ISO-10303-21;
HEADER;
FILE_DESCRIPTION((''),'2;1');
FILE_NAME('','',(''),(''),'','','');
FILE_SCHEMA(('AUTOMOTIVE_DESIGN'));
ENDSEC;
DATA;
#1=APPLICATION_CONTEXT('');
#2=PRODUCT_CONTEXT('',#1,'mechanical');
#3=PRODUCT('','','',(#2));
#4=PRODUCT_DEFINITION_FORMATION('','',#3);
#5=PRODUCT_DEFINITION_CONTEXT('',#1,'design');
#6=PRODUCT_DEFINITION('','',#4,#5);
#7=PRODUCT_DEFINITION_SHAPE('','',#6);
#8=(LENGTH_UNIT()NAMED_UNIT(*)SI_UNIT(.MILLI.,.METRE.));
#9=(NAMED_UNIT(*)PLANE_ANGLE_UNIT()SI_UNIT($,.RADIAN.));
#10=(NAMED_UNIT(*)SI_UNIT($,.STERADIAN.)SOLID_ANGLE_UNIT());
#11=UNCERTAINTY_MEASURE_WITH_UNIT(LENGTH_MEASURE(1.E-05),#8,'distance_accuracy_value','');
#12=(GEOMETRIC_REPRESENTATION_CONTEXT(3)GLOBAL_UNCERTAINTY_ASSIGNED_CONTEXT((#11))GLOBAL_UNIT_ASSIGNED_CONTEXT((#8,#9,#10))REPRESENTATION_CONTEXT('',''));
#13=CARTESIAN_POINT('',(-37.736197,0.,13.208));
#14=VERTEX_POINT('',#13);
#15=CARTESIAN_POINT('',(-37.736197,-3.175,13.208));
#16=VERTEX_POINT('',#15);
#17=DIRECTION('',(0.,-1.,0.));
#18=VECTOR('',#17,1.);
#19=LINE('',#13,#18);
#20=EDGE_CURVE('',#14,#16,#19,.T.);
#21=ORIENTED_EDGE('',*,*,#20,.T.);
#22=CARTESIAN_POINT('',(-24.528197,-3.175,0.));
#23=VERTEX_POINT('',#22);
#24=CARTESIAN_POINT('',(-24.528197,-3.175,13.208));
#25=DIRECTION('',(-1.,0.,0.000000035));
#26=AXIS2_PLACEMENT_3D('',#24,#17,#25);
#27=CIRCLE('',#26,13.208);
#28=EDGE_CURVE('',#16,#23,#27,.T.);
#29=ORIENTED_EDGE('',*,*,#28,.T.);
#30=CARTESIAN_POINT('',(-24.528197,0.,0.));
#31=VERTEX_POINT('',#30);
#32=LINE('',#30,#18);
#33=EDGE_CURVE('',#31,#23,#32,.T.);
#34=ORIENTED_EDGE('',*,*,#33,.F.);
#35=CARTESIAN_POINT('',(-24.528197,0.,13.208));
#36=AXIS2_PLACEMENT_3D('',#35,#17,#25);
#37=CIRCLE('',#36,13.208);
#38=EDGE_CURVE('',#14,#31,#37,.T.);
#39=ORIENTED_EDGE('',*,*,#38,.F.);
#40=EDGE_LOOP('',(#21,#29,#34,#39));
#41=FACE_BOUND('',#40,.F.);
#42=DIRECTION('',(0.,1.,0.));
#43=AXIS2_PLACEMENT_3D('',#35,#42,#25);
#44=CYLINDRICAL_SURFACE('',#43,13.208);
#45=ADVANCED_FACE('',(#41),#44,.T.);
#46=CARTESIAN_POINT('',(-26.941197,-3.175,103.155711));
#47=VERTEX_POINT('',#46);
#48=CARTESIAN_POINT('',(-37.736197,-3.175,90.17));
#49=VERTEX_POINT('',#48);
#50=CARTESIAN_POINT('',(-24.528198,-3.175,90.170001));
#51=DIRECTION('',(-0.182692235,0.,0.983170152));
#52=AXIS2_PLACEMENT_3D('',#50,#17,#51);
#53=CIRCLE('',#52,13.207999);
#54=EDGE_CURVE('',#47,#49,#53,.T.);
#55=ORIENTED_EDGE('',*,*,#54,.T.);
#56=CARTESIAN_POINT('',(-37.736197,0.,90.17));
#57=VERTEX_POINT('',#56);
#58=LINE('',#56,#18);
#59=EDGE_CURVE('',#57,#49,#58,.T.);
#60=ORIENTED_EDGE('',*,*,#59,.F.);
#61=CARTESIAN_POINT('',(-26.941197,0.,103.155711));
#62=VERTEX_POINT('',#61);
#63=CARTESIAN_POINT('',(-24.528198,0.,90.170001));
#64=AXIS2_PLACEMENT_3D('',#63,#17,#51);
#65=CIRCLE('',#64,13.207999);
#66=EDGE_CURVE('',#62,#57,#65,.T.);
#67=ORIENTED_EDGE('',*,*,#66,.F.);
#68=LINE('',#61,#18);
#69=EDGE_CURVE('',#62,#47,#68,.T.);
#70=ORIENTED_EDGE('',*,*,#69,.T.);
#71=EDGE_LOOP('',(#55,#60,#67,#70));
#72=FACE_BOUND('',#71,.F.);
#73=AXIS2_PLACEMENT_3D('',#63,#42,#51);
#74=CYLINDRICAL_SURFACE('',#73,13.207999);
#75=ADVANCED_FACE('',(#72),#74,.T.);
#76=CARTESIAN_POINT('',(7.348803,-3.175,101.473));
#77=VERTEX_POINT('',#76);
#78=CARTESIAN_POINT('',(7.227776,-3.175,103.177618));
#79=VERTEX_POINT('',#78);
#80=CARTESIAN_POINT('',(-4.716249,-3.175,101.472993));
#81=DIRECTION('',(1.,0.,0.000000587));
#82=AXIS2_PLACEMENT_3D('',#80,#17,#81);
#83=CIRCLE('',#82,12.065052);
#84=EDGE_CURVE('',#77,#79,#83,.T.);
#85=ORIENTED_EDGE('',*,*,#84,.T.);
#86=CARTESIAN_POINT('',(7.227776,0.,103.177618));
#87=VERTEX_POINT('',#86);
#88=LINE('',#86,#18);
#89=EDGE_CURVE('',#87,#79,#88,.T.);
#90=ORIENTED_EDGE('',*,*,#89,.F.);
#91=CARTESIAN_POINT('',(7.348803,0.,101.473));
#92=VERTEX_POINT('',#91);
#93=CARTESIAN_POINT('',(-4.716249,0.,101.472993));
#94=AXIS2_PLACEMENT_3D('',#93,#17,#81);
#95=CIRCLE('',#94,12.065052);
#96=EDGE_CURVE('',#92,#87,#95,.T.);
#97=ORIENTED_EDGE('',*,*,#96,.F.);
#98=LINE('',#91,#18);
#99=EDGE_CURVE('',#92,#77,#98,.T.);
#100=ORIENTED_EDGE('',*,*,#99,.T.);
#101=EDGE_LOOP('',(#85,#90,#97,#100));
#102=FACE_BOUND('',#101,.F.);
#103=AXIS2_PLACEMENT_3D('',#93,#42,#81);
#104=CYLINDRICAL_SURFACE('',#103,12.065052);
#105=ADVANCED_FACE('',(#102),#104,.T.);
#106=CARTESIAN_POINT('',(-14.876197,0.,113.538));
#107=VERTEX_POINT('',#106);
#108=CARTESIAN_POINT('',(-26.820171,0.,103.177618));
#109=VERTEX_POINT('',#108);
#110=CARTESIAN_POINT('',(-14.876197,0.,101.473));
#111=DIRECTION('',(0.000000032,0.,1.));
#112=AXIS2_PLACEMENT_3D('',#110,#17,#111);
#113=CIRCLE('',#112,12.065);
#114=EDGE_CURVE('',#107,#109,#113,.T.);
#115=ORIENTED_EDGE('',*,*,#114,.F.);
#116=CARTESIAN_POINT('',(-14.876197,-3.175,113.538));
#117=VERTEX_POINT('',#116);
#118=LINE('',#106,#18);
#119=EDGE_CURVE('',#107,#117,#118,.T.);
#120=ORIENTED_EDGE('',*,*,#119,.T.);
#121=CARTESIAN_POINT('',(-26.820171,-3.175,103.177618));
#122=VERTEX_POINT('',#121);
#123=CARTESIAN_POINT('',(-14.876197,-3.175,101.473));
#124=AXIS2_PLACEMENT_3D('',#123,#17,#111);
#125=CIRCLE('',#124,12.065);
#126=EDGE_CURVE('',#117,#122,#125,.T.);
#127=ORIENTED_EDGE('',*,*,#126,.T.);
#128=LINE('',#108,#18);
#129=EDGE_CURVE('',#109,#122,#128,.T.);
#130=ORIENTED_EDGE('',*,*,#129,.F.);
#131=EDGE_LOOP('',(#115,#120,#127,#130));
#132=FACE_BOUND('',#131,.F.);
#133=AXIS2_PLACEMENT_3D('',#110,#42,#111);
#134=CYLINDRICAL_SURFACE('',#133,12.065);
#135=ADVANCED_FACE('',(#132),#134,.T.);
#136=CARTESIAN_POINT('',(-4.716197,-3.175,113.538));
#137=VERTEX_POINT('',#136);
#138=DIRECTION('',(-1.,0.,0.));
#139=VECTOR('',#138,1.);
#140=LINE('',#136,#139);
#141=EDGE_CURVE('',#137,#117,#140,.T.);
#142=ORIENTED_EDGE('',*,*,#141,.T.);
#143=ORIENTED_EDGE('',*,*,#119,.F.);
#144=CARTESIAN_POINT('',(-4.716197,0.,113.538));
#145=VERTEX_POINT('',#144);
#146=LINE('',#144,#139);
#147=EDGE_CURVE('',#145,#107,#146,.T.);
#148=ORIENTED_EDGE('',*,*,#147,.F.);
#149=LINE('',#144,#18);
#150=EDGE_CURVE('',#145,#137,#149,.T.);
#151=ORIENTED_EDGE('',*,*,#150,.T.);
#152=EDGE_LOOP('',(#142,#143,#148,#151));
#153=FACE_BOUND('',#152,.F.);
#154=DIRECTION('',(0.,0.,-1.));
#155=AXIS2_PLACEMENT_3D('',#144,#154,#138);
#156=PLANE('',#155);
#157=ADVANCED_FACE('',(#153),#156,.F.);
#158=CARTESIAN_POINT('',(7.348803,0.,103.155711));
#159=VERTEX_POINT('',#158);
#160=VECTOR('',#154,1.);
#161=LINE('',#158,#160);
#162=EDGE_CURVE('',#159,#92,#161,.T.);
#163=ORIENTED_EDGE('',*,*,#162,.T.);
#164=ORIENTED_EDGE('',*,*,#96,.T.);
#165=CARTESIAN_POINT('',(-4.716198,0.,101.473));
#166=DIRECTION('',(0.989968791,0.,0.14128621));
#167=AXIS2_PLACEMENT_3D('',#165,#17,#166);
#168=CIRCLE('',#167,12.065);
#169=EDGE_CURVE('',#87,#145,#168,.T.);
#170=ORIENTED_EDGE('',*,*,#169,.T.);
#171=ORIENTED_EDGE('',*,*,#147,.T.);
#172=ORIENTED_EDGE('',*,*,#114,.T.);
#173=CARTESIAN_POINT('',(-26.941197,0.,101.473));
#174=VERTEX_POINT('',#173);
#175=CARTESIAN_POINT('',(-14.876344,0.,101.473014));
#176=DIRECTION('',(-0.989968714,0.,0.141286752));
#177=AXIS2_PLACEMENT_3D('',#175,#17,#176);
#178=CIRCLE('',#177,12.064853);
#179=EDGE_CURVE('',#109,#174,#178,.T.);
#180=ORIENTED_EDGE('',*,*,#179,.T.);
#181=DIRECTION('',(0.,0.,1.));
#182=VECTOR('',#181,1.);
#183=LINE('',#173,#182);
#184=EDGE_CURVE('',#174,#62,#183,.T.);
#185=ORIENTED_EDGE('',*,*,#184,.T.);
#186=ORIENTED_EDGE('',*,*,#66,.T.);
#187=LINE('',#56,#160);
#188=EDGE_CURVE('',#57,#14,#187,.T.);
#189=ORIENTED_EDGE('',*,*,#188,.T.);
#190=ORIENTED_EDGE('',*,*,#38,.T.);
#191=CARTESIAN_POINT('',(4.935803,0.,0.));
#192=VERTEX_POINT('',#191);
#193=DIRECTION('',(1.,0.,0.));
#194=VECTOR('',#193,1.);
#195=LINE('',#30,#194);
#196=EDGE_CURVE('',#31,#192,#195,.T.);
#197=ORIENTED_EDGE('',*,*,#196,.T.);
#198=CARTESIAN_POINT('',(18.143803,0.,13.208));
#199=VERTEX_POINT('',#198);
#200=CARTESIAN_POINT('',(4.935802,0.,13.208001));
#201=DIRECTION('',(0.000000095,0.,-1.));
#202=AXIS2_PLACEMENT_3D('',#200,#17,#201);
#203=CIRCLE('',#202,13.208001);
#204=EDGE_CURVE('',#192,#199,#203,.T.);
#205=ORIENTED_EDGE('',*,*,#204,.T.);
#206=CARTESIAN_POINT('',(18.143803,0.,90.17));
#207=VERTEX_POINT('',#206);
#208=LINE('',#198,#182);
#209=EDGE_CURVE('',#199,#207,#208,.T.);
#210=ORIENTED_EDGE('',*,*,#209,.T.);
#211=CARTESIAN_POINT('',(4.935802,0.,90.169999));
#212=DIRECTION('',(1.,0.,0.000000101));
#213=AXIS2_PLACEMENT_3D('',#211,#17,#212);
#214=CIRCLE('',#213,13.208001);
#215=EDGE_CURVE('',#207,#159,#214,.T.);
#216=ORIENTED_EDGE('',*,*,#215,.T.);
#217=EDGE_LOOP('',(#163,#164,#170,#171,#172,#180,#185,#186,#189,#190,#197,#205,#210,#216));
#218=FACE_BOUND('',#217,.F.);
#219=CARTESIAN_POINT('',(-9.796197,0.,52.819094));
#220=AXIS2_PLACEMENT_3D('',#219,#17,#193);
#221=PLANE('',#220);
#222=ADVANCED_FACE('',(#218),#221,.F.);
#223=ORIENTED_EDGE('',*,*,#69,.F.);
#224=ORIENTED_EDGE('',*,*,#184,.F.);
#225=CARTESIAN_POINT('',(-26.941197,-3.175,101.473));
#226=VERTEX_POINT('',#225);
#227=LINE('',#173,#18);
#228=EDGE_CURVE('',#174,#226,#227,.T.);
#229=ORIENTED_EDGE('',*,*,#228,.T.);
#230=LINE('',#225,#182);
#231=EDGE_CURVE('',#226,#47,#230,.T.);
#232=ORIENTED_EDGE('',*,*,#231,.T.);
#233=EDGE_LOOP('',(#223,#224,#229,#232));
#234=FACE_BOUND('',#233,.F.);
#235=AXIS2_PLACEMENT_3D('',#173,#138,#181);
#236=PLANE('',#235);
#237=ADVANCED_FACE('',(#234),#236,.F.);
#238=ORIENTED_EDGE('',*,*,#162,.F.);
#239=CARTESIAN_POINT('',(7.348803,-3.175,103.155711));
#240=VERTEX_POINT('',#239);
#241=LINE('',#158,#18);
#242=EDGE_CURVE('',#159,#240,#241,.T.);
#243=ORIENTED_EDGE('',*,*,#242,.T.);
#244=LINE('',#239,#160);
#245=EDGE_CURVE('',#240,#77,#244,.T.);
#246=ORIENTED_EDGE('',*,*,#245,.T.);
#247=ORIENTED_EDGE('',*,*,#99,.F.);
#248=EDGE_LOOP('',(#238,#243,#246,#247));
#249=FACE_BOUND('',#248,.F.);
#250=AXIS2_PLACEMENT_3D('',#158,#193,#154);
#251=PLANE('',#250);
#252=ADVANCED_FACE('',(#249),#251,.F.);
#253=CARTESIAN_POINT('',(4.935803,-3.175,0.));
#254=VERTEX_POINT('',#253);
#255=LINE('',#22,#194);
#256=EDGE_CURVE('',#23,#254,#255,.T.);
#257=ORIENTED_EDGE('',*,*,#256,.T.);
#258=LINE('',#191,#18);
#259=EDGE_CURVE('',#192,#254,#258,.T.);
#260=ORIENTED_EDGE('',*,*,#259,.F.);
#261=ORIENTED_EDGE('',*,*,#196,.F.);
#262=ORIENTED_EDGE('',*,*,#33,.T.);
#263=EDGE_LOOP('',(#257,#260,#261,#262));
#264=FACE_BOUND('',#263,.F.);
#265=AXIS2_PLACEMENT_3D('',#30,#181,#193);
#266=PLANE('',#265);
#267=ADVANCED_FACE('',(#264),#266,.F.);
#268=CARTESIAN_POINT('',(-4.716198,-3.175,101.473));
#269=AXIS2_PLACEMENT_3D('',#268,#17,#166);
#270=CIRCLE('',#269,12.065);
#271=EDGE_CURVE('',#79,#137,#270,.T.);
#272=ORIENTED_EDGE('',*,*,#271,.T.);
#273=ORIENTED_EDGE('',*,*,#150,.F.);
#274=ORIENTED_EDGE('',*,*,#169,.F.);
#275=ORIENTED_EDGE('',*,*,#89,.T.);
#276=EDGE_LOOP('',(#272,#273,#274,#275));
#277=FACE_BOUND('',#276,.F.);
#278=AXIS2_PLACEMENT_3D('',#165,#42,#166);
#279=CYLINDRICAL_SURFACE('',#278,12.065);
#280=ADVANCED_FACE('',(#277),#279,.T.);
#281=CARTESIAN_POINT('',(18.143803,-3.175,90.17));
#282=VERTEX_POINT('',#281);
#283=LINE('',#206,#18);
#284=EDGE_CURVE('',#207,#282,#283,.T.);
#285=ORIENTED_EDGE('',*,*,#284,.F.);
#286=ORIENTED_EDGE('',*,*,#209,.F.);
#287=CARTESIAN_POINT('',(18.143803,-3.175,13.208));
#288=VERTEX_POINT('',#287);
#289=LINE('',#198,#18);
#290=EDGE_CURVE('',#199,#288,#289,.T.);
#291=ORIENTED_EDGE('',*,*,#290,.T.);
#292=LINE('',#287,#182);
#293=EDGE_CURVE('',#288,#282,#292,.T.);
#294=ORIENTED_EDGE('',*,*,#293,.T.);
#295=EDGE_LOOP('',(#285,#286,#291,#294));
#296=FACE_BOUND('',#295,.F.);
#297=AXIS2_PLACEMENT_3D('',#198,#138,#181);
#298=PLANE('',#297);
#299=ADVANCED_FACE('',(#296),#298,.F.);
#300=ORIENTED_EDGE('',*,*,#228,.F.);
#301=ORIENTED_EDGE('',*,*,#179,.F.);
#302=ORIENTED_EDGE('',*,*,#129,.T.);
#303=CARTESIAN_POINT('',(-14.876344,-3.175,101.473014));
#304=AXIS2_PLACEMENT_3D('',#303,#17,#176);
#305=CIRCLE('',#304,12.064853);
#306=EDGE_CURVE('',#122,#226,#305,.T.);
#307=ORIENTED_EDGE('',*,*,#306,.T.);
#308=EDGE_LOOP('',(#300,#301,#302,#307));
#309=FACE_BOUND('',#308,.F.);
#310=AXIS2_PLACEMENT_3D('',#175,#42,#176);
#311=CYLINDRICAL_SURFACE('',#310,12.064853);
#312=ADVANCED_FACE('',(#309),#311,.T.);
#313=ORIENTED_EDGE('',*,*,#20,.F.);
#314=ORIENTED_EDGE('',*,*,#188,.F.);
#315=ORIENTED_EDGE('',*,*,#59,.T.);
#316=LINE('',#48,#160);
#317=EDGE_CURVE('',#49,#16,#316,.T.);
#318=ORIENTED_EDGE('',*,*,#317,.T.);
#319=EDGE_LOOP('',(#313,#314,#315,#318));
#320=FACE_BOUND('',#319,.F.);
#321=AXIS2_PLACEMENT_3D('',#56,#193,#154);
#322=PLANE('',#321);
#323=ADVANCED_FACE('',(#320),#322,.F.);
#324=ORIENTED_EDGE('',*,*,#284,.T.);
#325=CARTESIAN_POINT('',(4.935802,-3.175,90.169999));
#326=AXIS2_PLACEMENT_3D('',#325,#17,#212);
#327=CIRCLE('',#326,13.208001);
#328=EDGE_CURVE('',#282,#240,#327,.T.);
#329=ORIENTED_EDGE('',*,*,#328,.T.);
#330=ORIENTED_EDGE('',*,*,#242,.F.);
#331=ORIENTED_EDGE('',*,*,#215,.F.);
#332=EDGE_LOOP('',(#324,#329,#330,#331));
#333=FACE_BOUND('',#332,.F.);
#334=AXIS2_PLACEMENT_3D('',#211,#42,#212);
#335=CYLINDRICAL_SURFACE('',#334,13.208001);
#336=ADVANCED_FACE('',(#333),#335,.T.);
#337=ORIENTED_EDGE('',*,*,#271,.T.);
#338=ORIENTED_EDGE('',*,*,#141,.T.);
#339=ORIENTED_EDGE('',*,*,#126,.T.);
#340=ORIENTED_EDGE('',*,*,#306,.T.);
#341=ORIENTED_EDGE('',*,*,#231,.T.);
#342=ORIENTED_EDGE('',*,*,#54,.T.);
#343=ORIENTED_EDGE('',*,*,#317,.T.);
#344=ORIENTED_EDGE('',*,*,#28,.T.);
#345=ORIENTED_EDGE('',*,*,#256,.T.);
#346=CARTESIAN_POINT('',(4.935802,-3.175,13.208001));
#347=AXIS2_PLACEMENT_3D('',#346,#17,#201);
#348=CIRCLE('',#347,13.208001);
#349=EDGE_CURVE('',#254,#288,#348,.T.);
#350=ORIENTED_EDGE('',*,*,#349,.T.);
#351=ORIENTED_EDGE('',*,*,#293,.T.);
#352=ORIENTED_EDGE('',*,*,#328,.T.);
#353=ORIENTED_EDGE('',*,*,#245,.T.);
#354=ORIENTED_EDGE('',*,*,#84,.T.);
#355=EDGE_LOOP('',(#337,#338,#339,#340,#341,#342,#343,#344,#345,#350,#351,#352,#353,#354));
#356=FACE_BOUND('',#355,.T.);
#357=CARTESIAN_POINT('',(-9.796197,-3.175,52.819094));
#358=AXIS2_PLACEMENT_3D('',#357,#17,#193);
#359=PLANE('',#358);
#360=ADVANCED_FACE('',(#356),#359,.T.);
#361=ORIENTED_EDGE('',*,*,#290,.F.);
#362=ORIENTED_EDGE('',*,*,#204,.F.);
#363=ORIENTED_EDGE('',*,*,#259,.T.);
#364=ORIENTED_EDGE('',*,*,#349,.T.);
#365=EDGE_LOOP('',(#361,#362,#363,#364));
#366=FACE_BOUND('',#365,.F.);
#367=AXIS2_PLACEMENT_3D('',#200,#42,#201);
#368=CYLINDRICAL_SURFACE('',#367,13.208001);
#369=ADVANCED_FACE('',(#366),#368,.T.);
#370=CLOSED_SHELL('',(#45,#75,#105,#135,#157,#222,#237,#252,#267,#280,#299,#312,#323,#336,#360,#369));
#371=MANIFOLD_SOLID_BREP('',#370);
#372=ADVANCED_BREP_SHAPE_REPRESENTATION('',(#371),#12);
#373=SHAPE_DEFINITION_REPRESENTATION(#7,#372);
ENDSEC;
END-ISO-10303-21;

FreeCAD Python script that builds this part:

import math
import FreeCAD as App
import Part
import Sketcher

V = App.Vector
Q = App.Units.Quantity

doc = App.newDocument("Part")
body = doc.addObject("PartDesign::Body", "Body")

sketch1 = body.newObject("Sketcher::SketchObject", "Sketch")
sketch1.AttachmentSupport = (doc.getObject("XZ_Plane"), [""])
sketch1.MapMode = "FlatFace"
sketch1.addGeometry(Part.ArcOfCircle(Part.Circle(V(-24.528197, 13.208, 0), V(0, 0, 1), 13.208), math.radians(179.999998), math.radians(270.000002)), False)
sketch1.addGeometry(Part.LineSegment(V(-24.528197, 0, 0), V(4.935803, 0, 0)), False)
sketch1.addGeometry(Part.ArcOfCircle(Part.Circle(V(4.935802, 13.208001, 0), V(0, 0, 1), 13.208001), math.radians(-89.999995), math.radians(-0.000005)), False)
sketch1.addGeometry(Part.LineSegment(V(18.143803, 13.208, 0), V(18.143803, 90.17, 0)), False)
sketch1.addGeometry(Part.ArcOfCircle(Part.Circle(V(4.935802, 90.169999, 0), V(0, 0, 1), 13.208001), math.radians(0.000006), math.radians(79.473376)), False)
sketch1.addGeometry(Part.LineSegment(V(7.348803, 103.155711, 0), V(7.348803, 101.473, 0)), False)
sketch1.addGeometry(Part.ArcOfCircle(Part.Circle(V(-4.716249, 101.472993, 0), V(0, 0, 1), 12.065052), math.radians(0.000034), math.radians(8.122278)), False)
sketch1.addGeometry(Part.ArcOfCircle(Part.Circle(V(-4.716198, 101.473, 0), V(0, 0, 1), 12.065), math.radians(8.122281), math.radians(89.999997)), False)
sketch1.addGeometry(Part.LineSegment(V(-4.716197, 113.538, 0), V(-14.876197, 113.538, 0)), False)
sketch1.addGeometry(Part.ArcOfCircle(Part.Circle(V(-14.876197, 101.473, 0), V(0, 0, 1), 12.065), math.radians(89.999998), math.radians(171.877719)), False)
sketch1.addGeometry(Part.ArcOfCircle(Part.Circle(V(-14.876344, 101.473014, 0), V(0, 0, 1), 12.064853), math.radians(171.877688), math.radians(180.000067)), False)
sketch1.addGeometry(Part.LineSegment(V(-26.941197, 101.473, 0), V(-26.941197, 103.155711, 0)), False)
sketch1.addGeometry(Part.ArcOfCircle(Part.Circle(V(-24.528198, 90.170001, 0), V(0, 0, 1), 13.207999), math.radians(100.526614), math.radians(180.000003)), False)
sketch1.addGeometry(Part.LineSegment(V(-37.736197, 90.17, 0), V(-37.736197, 13.208, 0)), False)
sketch1.addConstraint(Sketcher.Constraint("Coincident", 0, 2, 1, 1))
sketch1.addConstraint(Sketcher.Constraint("Coincident", 1, 2, 2, 1))
sketch1.addConstraint(Sketcher.Constraint("Coincident", 2, 2, 3, 1))
sketch1.addConstraint(Sketcher.Constraint("Coincident", 3, 2, 4, 1))
sketch1.addConstraint(Sketcher.Constraint("Coincident", 4, 2, 5, 1))
sketch1.addConstraint(Sketcher.Constraint("Coincident", 5, 2, 6, 1))
sketch1.addConstraint(Sketcher.Constraint("Coincident", 6, 2, 7, 1))
sketch1.addConstraint(Sketcher.Constraint("Coincident", 7, 2, 8, 1))
sketch1.addConstraint(Sketcher.Constraint("Coincident", 8, 2, 9, 1))
sketch1.addConstraint(Sketcher.Constraint("Coincident", 9, 2, 10, 1))
sketch1.addConstraint(Sketcher.Constraint("Coincident", 10, 2, 11, 1))
sketch1.addConstraint(Sketcher.Constraint("Coincident", 11, 2, 12, 1))
sketch1.addConstraint(Sketcher.Constraint("Coincident", 12, 2, 13, 1))
sketch1.addConstraint(Sketcher.Constraint("Coincident", 13, 2, 0, 1))
sketch1.addConstraint(Sketcher.Constraint("Horizontal", 1))
sketch1.addConstraint(Sketcher.Constraint("Vertical", 3))
sketch1.addConstraint(Sketcher.Constraint("Vertical", 5))
sketch1.addConstraint(Sketcher.Constraint("Horizontal", 8))
sketch1.addConstraint(Sketcher.Constraint("Vertical", 11))
sketch1.addConstraint(Sketcher.Constraint("Vertical", 13))
sketch1.addConstraint(Sketcher.Constraint("PointOnObject", 0, 2, -1))
sketch1.addConstraint(Sketcher.Constraint("Radius", 0, Q("0.52 in")))
sketch1.addConstraint(Sketcher.Constraint("Radius", 2, Q("0.52 in")))
sketch1.addConstraint(Sketcher.Constraint("Radius", 4, Q("0.5200001 in")))
sketch1.addConstraint(Sketcher.Constraint("Radius", 12, Q("0.52 in")))
sketch1.addConstraint(Sketcher.Constraint("DistanceX", 8, 2, 8, 1, Q("0.4 in")))
sketch1.addConstraint(Sketcher.Constraint("Radius", 7, Q("0.475 in")))
sketch1.addConstraint(Sketcher.Constraint("Radius", 9, Q("0.475 in")))
sketch1.addConstraint(Sketcher.Constraint("DistanceX", 1, 1, 1, 2, Q("1.16 in")))
sketch1.addConstraint(Sketcher.Constraint("DistanceY", 3, 1, 3, 2, Q("3.03 in")))
sketch1.addConstraint(Sketcher.Constraint("DistanceY", 13, 2, 13, 1, Q("3.03 in")))
sketch1.addConstraint(Sketcher.Constraint("DistanceX", 9, 3, 7, 3, Q("0.4 in")))
sketch1.addConstraint(Sketcher.Constraint("DistanceX", 7, 3, 3, 2, Q("0.9 in")))
sketch1.addConstraint(Sketcher.Constraint("DistanceX", 9, 3, 7, 2, Q("0.4 in")))
sketch1.addConstraint(Sketcher.Constraint("DistanceX", 13, 2, 2, 2, Q("2.2 in")))
sketch1.addConstraint(Sketcher.Constraint("DistanceY", -1, 1, 4, 3, Q("3.5499999 in")))
sketch1.addConstraint(Sketcher.Constraint("DistanceY", -1, 1, 12, 3, Q("3.55 in")))
sketch1.addConstraint(Sketcher.Constraint("DistanceY", -1, 1, 2, 2, Q("0.52 in")))
sketch1.addConstraint(Sketcher.Constraint("DistanceY", -1, 1, 7, 2, Q("4.47 in")))
sketch1.addConstraint(Sketcher.Constraint("DistanceY", -1, 1, 12, 2, Q("3.55 in")))
sketch1.addConstraint(Sketcher.Constraint("DistanceX", 0, 2, 2, 3, Q("1.16 in")))
sketch1.addConstraint(Sketcher.Constraint("DistanceY", -1, 1, 5, 2, Q("3.995 in")))
sketch1.addConstraint(Sketcher.Constraint("DistanceY", -1, 1, 10, 2, Q("3.995 in")))
sketch1.addConstraint(Sketcher.Constraint("DistanceX", 7, 3, 4, 2, Q("0.475 in")))
sketch1.addConstraint(Sketcher.Constraint("DistanceX", 10, 2, 12, 3, Q("0.095 in")))
sketch1.addConstraint(Sketcher.Constraint("Radius", 6, Q("12.065052 mm")))
sketch1.addConstraint(Sketcher.Constraint("Radius", 10, Q("12.064853 mm")))
sketch1.addConstraint(Sketcher.Constraint("DistanceX", -1, 1, 2, 3, Q("4.935802 mm")))
sketch1.addConstraint(Sketcher.Constraint("DistanceY", -1, 1, 6, 2, Q("103.177618 mm")))
sketch1.addConstraint(Sketcher.Constraint("DistanceX", 9, 2, -1, 1, Q("26.820171 mm")))
pad1 = body.newObject("PartDesign::Pad", "Pad")
pad1.Profile = sketch1
pad1.Length = Q("0.125 in")

doc.recompute()
